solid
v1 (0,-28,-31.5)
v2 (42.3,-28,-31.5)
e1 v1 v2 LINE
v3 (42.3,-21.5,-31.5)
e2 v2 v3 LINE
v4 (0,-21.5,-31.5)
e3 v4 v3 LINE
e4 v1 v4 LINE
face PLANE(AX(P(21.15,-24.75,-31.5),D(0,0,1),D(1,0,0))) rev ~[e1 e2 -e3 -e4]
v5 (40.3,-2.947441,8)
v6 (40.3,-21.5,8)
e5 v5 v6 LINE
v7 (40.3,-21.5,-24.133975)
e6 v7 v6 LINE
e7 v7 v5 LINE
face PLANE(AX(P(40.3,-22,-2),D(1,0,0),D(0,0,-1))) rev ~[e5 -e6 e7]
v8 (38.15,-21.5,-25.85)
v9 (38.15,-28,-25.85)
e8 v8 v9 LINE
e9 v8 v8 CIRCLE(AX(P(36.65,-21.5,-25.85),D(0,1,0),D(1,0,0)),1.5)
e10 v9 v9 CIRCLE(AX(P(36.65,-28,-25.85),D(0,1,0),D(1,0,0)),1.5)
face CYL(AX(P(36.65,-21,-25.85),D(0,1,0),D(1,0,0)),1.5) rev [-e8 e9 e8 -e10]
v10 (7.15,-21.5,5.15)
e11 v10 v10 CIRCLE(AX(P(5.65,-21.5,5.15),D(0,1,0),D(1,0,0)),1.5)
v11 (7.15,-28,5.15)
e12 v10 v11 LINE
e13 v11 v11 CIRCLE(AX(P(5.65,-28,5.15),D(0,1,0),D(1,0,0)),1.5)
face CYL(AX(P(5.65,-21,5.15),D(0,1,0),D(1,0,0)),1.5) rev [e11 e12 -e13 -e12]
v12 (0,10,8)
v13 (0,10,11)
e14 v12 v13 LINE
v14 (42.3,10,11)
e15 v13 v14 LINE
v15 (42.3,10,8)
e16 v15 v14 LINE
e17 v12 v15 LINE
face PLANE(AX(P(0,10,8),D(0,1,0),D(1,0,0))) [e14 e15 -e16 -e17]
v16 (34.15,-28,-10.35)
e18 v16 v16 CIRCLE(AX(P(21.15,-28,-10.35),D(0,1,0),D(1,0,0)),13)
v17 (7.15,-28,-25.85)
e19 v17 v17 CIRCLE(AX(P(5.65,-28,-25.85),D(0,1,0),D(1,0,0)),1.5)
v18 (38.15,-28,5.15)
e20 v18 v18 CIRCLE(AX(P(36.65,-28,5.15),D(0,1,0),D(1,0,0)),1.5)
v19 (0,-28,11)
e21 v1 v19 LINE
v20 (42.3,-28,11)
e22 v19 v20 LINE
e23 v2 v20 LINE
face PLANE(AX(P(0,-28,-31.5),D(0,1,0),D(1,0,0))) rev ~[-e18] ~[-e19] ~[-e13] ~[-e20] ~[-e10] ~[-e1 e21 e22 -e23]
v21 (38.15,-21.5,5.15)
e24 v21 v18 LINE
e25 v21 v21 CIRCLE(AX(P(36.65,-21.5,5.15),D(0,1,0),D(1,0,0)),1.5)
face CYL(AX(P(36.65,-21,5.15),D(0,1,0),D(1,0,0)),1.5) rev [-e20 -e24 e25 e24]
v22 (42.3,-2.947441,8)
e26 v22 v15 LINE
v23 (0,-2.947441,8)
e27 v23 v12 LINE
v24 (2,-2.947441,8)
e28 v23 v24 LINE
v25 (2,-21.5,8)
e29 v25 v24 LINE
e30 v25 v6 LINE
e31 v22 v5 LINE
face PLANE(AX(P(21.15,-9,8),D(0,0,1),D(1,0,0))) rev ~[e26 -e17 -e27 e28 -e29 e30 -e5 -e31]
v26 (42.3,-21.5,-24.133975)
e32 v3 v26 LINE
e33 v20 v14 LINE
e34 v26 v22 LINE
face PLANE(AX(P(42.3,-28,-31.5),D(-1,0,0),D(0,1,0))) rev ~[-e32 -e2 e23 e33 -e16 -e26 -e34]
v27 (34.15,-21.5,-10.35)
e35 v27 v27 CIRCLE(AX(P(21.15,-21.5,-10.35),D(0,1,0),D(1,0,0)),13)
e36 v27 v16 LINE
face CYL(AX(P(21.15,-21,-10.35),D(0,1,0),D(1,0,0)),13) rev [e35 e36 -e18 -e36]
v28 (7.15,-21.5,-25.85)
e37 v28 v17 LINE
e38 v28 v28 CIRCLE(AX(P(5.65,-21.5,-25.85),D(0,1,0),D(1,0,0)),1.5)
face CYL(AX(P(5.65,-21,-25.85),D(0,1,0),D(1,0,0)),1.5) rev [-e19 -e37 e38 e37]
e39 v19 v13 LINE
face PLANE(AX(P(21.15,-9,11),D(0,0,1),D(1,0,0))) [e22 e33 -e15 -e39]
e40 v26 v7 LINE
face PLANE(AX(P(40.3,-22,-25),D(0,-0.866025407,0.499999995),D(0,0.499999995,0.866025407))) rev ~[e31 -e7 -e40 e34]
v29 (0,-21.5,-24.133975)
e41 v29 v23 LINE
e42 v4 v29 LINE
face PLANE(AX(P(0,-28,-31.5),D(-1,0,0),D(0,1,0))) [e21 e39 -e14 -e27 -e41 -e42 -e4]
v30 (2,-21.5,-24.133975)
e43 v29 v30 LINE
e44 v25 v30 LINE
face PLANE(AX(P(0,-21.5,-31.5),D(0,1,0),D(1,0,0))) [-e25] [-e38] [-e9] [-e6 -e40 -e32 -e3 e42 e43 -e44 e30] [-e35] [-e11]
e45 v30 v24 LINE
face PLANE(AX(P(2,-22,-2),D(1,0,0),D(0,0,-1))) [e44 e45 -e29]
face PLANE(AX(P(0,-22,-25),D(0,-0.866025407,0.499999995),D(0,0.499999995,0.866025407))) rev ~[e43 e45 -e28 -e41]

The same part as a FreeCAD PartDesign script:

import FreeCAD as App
import Part
import Sketcher
Q = App.Units.Quantity


def add_polygon(sketch, points):
    """Adds a closed chain of lines whose ends are joined by coincident constraints."""
    first, n = sketch.GeometryCount, len(points)
    for a, b in zip(points, points[1:] + points[:1]):
        sketch.addGeometry(Part.LineSegment(App.Vector(*a, 0), App.Vector(*b, 0)), False)
    for i in range(n):
        sketch.addConstraint(Sketcher.Constraint("Coincident", first + i, 2, first + (i + 1) % n, 1))

doc = App.newDocument("Part")
body = doc.addObject("PartDesign::Body", "Body")

# Sketch on XY plane
sketch1 = body.newObject("Sketcher::SketchObject", "Sketch")
sketch1.AttachmentSupport = (doc.getObject("XY_Plane"), [""])
sketch1.MapMode = "FlatFace"
sketch1.AttachmentOffset = App.Placement(App.Vector(0, 0, -25.5), App.Rotation())
add_polygon(sketch1, [(0, -19), (0, -43), (44, -43), (44, -19)])  # lines 0-3
sketch1.addConstraint(Sketcher.Constraint("Vertical", 0))
sketch1.addConstraint(Sketcher.Constraint("Horizontal", 1))
sketch1.addConstraint(Sketcher.Constraint("Vertical", 2))
sketch1.addConstraint(Sketcher.Constraint("Horizontal", 3))
sketch1.addConstraint(Sketcher.Constraint("PointOnObject", 0, 2, -2))
sketch1.addConstraint(Sketcher.Constraint("DistanceX", 1, 1, 1, 2, Q("44 mm")))
sketch1.addConstraint(Sketcher.Constraint("DistanceY", 0, 2, 0, 1, Q("24 mm")))
sketch1.addConstraint(Sketcher.Constraint("DistanceY", 0, 2, -1, 1, Q("43 mm")))
pad1 = body.newObject("PartDesign::Pad", "Pad")
pad1.Profile = sketch1
pad1.Length = 70
body2 = doc.addObject("PartDesign::Body", "Body001")

# Sketch on YZ plane
sketch2 = body2.newObject("Sketcher::SketchObject", "Sketch001")
sketch2.AttachmentSupport = (doc.getObject("YZ_Plane001"), [""])
sketch2.MapMode = "FlatFace"
add_polygon(sketch2, [(-19, -21), (1, 14), (-39, 14)])  # lines 0-2
sketch2.addConstraint(Sketcher.Constraint("Horizontal", 1))
sketch2.addConstraint(Sketcher.Constraint("Equal", 0, 2))
sketch2.addConstraint(Sketcher.Constraint("Angle", 0, Q("60 deg")))
sketch2.addConstraint(Sketcher.Constraint("DistanceX", 2, 2, -1, 1, Q("19 mm")))
sketch2.addConstraint(Sketcher.Constraint("DistanceY", 2, 2, -1, 1, Q("21 mm")))
sketch2.addConstraint(Sketcher.Constraint("DistanceY", -1, 1, 0, 2, Q("13.5 mm")))
pad2 = body2.newObject("PartDesign::Pad", "Pad001")
pad2.Profile = sketch2
pad2.Length = 2
doc.recompute()

boolean = body2.newObject("PartDesign::Boolean", "Boolean")
boolean.Type = "Cut"
boolean.addObjects([body])
body3 = doc.addObject("PartDesign::Body", "Body002")
doc.recompute()

body2.Placement = App.Placement(App.Vector(0, -3, -4), App.Rotation(App.Vector(0, 0, 1), 0))
boolean2 = body3.newObject("PartDesign::Boolean", "Boolean001")
boolean2.Type = "Fuse"
boolean2.addObjects([body2])
body4 = doc.addObject("PartDesign::Body", "Body003")

# Sketch on XY plane
sketch3 = body4.newObject("Sketcher::SketchObject", "Sketch002")
sketch3.AttachmentSupport = (doc.getObject("XY_Plane003"), [""])
sketch3.MapMode = "FlatFace"
sketch3.AttachmentOffset = App.Placement(App.Vector(0, 0, 8), App.Rotation())
add_polygon(sketch3, [(0, 10), (0, -28), (42, -28), (42, 10)])  # lines 0-3
sketch3.addConstraint(Sketcher.Constraint("Vertical", 0))
sketch3.addConstraint(Sketcher.Constraint("Horizontal", 1))
sketch3.addConstraint(Sketcher.Constraint("Vertical", 2))
sketch3.addConstraint(Sketcher.Constraint("Horizontal", 3))
sketch3.addConstraint(Sketcher.Constraint("PointOnObject", 0, 2, -2))
sketch3.addConstraint(Sketcher.Constraint("DistanceY", 0, 2, 0, 1, Q("38 mm")))
sketch3.addConstraint(Sketcher.Constraint("DistanceX", 1, 1, 1, 2, Q("42.3 mm")))
sketch3.addConstraint(Sketcher.Constraint("DistanceY", 0, 2, -1, 1, Q("28 mm")))
pad3 = body4.newObject("PartDesign::Pad", "Pad002")
pad3.Profile = sketch3
pad3.Length = 3
body5 = doc.addObject("PartDesign::Body", "Body004")

# Sketch on XZ plane
sketch4 = body5.newObject("Sketcher::SketchObject", "Sketch003")
sketch4.AttachmentSupport = (doc.getObject("XZ_Plane004"), [""])
sketch4.MapMode = "FlatFace"
sketch4.AttachmentOffset = App.Placement(App.Vector(0, 0, 14), App.Rotation())
sketch4.addGeometry(Part.Circle(App.Vector(21, 21, 0), App.Vector(0, 0, 1), 13), False)
sketch4.addConstraint(Sketcher.Constraint("Diameter", 0, Q("26 mm")))
sketch4.addConstraint(Sketcher.Constraint("DistanceX", -1, 1, 0, 3, Q("21.15 mm")))
sketch4.addConstraint(Sketcher.Constraint("DistanceY", -1, 1, 0, 3, Q("21.15 mm")))
pad4 = body5.newObject("PartDesign::Pad", "Pad003")
pad4.Profile = sketch4
pad4.Length = 10
body6 = doc.addObject("PartDesign::Body", "Body005")

# Sketch on XZ plane
sketch5 = body6.newObject("Sketcher::SketchObject", "Sketch004")
sketch5.AttachmentSupport = (doc.getObject("XZ_Plane005"), [""])
sketch5.MapMode = "FlatFace"
sketch5.AttachmentOffset = App.Placement(App.Vector(0, 0, 14), App.Rotation())
sketch5.addGeometry(Part.Circle(App.Vector(5.7, 36.6, 0), App.Vector(0, 0, 1), 1.5), False)
sketch5.addConstraint(Sketcher.Constraint("Diameter", 0, Q("3 mm")))
sketch5.addConstraint(Sketcher.Constraint("DistanceX", -1, 1, 0, 3, Q("5.65 mm")))
sketch5.addConstraint(Sketcher.Constraint("DistanceY", -1, 1, 0, 3, Q("36.65 mm")))
pad5 = body6.newObject("PartDesign::Pad", "Pad004")
pad5.Profile = sketch5
pad5.Length = 10
body7 = doc.addObject("PartDesign::Body", "Body006")

# Sketch on XZ plane
sketch6 = body7.newObject("Sketcher::SketchObject", "Sketch005")
sketch6.AttachmentSupport = (doc.getObject("XZ_Plane006"), [""])
sketch6.MapMode = "FlatFace"
sketch6.AttachmentOffset = App.Placement(App.Vector(0, 0, 14), App.Rotation())
sketch6.addGeometry(Part.Circle(App.Vector(36.6, 5.7, 0), App.Vector(0, 0, 1), 1.5), False)
sketch6.addConstraint(Sketcher.Constraint("Diameter", 0, Q("3 mm")))
sketch6.addConstraint(Sketcher.Constraint("DistanceX", -1, 1, 0, 3, Q("36.65 mm")))
sketch6.addConstraint(Sketcher.Constraint("DistanceY", -1, 1, 0, 3, Q("5.65 mm")))
pad6 = body7.newObject("PartDesign::Pad", "Pad005")
pad6.Profile = sketch6
pad6.Length = 10
body8 = doc.addObject("PartDesign::Body", "Body007")

# Sketch on XZ plane
sketch7 = body8.newObject("Sketcher::SketchObject", "Sketch006")
sketch7.AttachmentSupport = (doc.getObject("XZ_Plane007"), [""])
sketch7.MapMode = "FlatFace"
sketch7.AttachmentOffset = App.Placement(App.Vector(0, 0, 14), App.Rotation())
sketch7.addGeometry(Part.Circle(App.Vector(36.6, 36.6, 0), App.Vector(0, 0, 1), 1.5), False)
sketch7.addConstraint(Sketcher.Constraint("Diameter", 0, Q("3 mm")))
sketch7.addConstraint(Sketcher.Constraint("DistanceX", -1, 1, 0, 3, Q("36.65 mm")))
sketch7.addConstraint(Sketcher.Constraint("DistanceY", -1, 1, 0, 3, Q("36.65 mm")))
pad7 = body8.newObject("PartDesign::Pad", "Pad006")
pad7.Profile = sketch7
pad7.Length = 10
body9 = doc.addObject("PartDesign::Body", "Body008")

# Sketch on XZ plane
sketch8 = body9.newObject("Sketcher::SketchObject", "Sketch007")
sketch8.AttachmentSupport = (doc.getObject("XZ_Plane008"), [""])
sketch8.MapMode = "FlatFace"
sketch8.AttachmentOffset = App.Placement(App.Vector(0, 0, 14), App.Rotation())
sketch8.addGeometry(Part.Circle(App.Vector(5.7, 5.7, 0), App.Vector(0, 0, 1), 1.5), False)
sketch8.addConstraint(Sketcher.Constraint("Diameter", 0, Q("3 mm")))
sketch8.addConstraint(Sketcher.Constraint("DistanceX", -1, 1, 0, 3, Q("5.65 mm")))
sketch8.addConstraint(Sketcher.Constraint("DistanceY", -1, 1, 0, 3, Q("5.65 mm")))
pad8 = body9.newObject("PartDesign::Pad", "Pad007")
pad8.Profile = sketch8
pad8.Length = 10
body10 = doc.addObject("PartDesign::Body", "Body009")

# Sketch on XY plane
sketch9 = body10.newObject("Sketcher::SketchObject", "Sketch008")
sketch9.AttachmentSupport = (doc.getObject("XY_Plane009"), [""])
sketch9.MapMode = "FlatFace"
add_polygon(sketch9, [(0, -14), (0, -21), (42, -21), (42, -14)])  # lines 0-3
sketch9.addConstraint(Sketcher.Constraint("Vertical", 0))
sketch9.addConstraint(Sketcher.Constraint("Horizontal", 1))
sketch9.addConstraint(Sketcher.Constraint("Vertical", 2))
sketch9.addConstraint(Sketcher.Constraint("Horizontal", 3))
sketch9.addConstraint(Sketcher.Constraint("PointOnObject", 0, 2, -2))
sketch9.addConstraint(Sketcher.Constraint("DistanceX", 1, 1, 1, 2, Q("42.3 mm")))
sketch9.addConstraint(Sketcher.Constraint("DistanceY", 0, 2, 0, 1, Q("6.5 mm")))
sketch9.addConstraint(Sketcher.Constraint("DistanceY", 0, 2, -1, 1, Q("21 mm")))
pad9 = body10.newObject("PartDesign::Pad", "Pad008")
pad9.Profile = sketch9
pad9.Length = 42.3
doc.recompute()

boolean3 = body10.newObject("PartDesign::Boolean", "Boolean002")
boolean3.Type = "Cut"
boolean3.addObjects([body9])
doc.recompute()

boolean4 = body10.newObject("PartDesign::Boolean", "Boolean003")
boolean4.Type = "Cut"
boolean4.addObjects([body8])
doc.recompute()

boolean5 = body10.newObject("PartDesign::Boolean", "Boolean004")
boolean5.Type = "Cut"
boolean5.addObjects([body7])
doc.recompute()

boolean6 = body10.newObject("PartDesign::Boolean", "Boolean005")
boolean6.Type = "Cut"
boolean6.addObjects([body6])
doc.recompute()

boolean7 = body10.newObject("PartDesign::Boolean", "Boolean006")
boolean7.Type = "Cut"
boolean7.addObjects([body5])
body11 = doc.addObject("PartDesign::Body", "Body010")
doc.recompute()

body10.Placement = App.Placement(App.Vector(0, -7, -31.5), App.Rotation(App.Vector(0, 0, 1), 0))
boolean8 = body11.newObject("PartDesign::Boolean", "Boolean007")
boolean8.Type = "Fuse"
boolean8.addObjects([body10])
doc.recompute()

boolean9 = body11.newObject("PartDesign::Boolean", "Boolean008")
boolean9.Type = "Fuse"
boolean9.addObjects([body4])
doc.recompute()

boolean10 = body11.newObject("PartDesign::Boolean", "Boolean009")
boolean10.Type = "Fuse"
boolean10.addObjects([body3])
body12 = doc.addObject("PartDesign::Body", "Body011")

# Sketch on XY plane
sketch10 = body12.newObject("Sketcher::SketchObject", "Sketch009")
sketch10.AttachmentSupport = (doc.getObject("XY_Plane011"), [""])
sketch10.MapMode = "FlatFace"
sketch10.AttachmentOffset = App.Placement(App.Vector(0, 0, -25.5), App.Rotation())
add_polygon(sketch10, [(0, -19), (0, -43), (44, -43), (44, -19)])  # lines 0-3
sketch10.addConstraint(Sketcher.Constraint("Vertical", 0))
sketch10.addConstraint(Sketcher.Constraint("Horizontal", 1))
sketch10.addConstraint(Sketcher.Constraint("Vertical", 2))
sketch10.addConstraint(Sketcher.Constraint("Horizontal", 3))
sketch10.addConstraint(Sketcher.Constraint("PointOnObject", 0, 2, -2))
sketch10.addConstraint(Sketcher.Constraint("DistanceX", 1, 1, 1, 2, Q("44 mm")))
sketch10.addConstraint(Sketcher.Constraint("DistanceY", 0, 2, 0, 1, Q("24 mm")))
sketch10.addConstraint(Sketcher.Constraint("DistanceY", 0, 2, -1, 1, Q("43 mm")))
pad10 = body12.newObject("PartDesign::Pad", "Pad009")
pad10.Profile = sketch10
pad10.Length = 70
body13 = doc.addObject("PartDesign::Body", "Body012")

# Sketch on YZ plane
sketch11 = body13.newObject("Sketcher::SketchObject", "Sketch010")
sketch11.AttachmentSupport = (doc.getObject("YZ_Plane012"), [""])
sketch11.MapMode = "FlatFace"
add_polygon(sketch11, [(-19, -21), (1, 14), (-39, 14)])  # lines 0-2
sketch11.addConstraint(Sketcher.Constraint("Horizontal", 1))
sketch11.addConstraint(Sketcher.Constraint("Equal", 0, 2))
sketch11.addConstraint(Sketcher.Constraint("Angle", 0, Q("60 deg")))
sketch11.addConstraint(Sketcher.Constraint("DistanceX", 2, 2, -1, 1, Q("19 mm")))
sketch11.addConstraint(Sketcher.Constraint("DistanceY", 2, 2, -1, 1, Q("21 mm")))
sketch11.addConstraint(Sketcher.Constraint("DistanceY", -1, 1, 0, 2, Q("13.5 mm")))
pad11 = body13.newObject("PartDesign::Pad", "Pad010")
pad11.Profile = sketch11
pad11.Length = 2
doc.recompute()

boolean11 = body13.newObject("PartDesign::Boolean", "Boolean010")
boolean11.Type = "Cut"
boolean11.addObjects([body12])
body14 = doc.addObject("PartDesign::Body", "Body013")
doc.recompute()

body13.Placement = App.Placement(App.Vector(40.3, -3, -4), App.Rotation(App.Vector(0, 0, 1), 0))
boolean12 = body14.newObject("PartDesign::Boolean", "Boolean011")
boolean12.Type = "Fuse"
boolean12.addObjects([body13])
doc.recompute()

boolean13 = body14.newObject("PartDesign::Boolean", "Boolean012")
boolean13.Type = "Fuse"
boolean13.addObjects([body11])

doc.recompute()
